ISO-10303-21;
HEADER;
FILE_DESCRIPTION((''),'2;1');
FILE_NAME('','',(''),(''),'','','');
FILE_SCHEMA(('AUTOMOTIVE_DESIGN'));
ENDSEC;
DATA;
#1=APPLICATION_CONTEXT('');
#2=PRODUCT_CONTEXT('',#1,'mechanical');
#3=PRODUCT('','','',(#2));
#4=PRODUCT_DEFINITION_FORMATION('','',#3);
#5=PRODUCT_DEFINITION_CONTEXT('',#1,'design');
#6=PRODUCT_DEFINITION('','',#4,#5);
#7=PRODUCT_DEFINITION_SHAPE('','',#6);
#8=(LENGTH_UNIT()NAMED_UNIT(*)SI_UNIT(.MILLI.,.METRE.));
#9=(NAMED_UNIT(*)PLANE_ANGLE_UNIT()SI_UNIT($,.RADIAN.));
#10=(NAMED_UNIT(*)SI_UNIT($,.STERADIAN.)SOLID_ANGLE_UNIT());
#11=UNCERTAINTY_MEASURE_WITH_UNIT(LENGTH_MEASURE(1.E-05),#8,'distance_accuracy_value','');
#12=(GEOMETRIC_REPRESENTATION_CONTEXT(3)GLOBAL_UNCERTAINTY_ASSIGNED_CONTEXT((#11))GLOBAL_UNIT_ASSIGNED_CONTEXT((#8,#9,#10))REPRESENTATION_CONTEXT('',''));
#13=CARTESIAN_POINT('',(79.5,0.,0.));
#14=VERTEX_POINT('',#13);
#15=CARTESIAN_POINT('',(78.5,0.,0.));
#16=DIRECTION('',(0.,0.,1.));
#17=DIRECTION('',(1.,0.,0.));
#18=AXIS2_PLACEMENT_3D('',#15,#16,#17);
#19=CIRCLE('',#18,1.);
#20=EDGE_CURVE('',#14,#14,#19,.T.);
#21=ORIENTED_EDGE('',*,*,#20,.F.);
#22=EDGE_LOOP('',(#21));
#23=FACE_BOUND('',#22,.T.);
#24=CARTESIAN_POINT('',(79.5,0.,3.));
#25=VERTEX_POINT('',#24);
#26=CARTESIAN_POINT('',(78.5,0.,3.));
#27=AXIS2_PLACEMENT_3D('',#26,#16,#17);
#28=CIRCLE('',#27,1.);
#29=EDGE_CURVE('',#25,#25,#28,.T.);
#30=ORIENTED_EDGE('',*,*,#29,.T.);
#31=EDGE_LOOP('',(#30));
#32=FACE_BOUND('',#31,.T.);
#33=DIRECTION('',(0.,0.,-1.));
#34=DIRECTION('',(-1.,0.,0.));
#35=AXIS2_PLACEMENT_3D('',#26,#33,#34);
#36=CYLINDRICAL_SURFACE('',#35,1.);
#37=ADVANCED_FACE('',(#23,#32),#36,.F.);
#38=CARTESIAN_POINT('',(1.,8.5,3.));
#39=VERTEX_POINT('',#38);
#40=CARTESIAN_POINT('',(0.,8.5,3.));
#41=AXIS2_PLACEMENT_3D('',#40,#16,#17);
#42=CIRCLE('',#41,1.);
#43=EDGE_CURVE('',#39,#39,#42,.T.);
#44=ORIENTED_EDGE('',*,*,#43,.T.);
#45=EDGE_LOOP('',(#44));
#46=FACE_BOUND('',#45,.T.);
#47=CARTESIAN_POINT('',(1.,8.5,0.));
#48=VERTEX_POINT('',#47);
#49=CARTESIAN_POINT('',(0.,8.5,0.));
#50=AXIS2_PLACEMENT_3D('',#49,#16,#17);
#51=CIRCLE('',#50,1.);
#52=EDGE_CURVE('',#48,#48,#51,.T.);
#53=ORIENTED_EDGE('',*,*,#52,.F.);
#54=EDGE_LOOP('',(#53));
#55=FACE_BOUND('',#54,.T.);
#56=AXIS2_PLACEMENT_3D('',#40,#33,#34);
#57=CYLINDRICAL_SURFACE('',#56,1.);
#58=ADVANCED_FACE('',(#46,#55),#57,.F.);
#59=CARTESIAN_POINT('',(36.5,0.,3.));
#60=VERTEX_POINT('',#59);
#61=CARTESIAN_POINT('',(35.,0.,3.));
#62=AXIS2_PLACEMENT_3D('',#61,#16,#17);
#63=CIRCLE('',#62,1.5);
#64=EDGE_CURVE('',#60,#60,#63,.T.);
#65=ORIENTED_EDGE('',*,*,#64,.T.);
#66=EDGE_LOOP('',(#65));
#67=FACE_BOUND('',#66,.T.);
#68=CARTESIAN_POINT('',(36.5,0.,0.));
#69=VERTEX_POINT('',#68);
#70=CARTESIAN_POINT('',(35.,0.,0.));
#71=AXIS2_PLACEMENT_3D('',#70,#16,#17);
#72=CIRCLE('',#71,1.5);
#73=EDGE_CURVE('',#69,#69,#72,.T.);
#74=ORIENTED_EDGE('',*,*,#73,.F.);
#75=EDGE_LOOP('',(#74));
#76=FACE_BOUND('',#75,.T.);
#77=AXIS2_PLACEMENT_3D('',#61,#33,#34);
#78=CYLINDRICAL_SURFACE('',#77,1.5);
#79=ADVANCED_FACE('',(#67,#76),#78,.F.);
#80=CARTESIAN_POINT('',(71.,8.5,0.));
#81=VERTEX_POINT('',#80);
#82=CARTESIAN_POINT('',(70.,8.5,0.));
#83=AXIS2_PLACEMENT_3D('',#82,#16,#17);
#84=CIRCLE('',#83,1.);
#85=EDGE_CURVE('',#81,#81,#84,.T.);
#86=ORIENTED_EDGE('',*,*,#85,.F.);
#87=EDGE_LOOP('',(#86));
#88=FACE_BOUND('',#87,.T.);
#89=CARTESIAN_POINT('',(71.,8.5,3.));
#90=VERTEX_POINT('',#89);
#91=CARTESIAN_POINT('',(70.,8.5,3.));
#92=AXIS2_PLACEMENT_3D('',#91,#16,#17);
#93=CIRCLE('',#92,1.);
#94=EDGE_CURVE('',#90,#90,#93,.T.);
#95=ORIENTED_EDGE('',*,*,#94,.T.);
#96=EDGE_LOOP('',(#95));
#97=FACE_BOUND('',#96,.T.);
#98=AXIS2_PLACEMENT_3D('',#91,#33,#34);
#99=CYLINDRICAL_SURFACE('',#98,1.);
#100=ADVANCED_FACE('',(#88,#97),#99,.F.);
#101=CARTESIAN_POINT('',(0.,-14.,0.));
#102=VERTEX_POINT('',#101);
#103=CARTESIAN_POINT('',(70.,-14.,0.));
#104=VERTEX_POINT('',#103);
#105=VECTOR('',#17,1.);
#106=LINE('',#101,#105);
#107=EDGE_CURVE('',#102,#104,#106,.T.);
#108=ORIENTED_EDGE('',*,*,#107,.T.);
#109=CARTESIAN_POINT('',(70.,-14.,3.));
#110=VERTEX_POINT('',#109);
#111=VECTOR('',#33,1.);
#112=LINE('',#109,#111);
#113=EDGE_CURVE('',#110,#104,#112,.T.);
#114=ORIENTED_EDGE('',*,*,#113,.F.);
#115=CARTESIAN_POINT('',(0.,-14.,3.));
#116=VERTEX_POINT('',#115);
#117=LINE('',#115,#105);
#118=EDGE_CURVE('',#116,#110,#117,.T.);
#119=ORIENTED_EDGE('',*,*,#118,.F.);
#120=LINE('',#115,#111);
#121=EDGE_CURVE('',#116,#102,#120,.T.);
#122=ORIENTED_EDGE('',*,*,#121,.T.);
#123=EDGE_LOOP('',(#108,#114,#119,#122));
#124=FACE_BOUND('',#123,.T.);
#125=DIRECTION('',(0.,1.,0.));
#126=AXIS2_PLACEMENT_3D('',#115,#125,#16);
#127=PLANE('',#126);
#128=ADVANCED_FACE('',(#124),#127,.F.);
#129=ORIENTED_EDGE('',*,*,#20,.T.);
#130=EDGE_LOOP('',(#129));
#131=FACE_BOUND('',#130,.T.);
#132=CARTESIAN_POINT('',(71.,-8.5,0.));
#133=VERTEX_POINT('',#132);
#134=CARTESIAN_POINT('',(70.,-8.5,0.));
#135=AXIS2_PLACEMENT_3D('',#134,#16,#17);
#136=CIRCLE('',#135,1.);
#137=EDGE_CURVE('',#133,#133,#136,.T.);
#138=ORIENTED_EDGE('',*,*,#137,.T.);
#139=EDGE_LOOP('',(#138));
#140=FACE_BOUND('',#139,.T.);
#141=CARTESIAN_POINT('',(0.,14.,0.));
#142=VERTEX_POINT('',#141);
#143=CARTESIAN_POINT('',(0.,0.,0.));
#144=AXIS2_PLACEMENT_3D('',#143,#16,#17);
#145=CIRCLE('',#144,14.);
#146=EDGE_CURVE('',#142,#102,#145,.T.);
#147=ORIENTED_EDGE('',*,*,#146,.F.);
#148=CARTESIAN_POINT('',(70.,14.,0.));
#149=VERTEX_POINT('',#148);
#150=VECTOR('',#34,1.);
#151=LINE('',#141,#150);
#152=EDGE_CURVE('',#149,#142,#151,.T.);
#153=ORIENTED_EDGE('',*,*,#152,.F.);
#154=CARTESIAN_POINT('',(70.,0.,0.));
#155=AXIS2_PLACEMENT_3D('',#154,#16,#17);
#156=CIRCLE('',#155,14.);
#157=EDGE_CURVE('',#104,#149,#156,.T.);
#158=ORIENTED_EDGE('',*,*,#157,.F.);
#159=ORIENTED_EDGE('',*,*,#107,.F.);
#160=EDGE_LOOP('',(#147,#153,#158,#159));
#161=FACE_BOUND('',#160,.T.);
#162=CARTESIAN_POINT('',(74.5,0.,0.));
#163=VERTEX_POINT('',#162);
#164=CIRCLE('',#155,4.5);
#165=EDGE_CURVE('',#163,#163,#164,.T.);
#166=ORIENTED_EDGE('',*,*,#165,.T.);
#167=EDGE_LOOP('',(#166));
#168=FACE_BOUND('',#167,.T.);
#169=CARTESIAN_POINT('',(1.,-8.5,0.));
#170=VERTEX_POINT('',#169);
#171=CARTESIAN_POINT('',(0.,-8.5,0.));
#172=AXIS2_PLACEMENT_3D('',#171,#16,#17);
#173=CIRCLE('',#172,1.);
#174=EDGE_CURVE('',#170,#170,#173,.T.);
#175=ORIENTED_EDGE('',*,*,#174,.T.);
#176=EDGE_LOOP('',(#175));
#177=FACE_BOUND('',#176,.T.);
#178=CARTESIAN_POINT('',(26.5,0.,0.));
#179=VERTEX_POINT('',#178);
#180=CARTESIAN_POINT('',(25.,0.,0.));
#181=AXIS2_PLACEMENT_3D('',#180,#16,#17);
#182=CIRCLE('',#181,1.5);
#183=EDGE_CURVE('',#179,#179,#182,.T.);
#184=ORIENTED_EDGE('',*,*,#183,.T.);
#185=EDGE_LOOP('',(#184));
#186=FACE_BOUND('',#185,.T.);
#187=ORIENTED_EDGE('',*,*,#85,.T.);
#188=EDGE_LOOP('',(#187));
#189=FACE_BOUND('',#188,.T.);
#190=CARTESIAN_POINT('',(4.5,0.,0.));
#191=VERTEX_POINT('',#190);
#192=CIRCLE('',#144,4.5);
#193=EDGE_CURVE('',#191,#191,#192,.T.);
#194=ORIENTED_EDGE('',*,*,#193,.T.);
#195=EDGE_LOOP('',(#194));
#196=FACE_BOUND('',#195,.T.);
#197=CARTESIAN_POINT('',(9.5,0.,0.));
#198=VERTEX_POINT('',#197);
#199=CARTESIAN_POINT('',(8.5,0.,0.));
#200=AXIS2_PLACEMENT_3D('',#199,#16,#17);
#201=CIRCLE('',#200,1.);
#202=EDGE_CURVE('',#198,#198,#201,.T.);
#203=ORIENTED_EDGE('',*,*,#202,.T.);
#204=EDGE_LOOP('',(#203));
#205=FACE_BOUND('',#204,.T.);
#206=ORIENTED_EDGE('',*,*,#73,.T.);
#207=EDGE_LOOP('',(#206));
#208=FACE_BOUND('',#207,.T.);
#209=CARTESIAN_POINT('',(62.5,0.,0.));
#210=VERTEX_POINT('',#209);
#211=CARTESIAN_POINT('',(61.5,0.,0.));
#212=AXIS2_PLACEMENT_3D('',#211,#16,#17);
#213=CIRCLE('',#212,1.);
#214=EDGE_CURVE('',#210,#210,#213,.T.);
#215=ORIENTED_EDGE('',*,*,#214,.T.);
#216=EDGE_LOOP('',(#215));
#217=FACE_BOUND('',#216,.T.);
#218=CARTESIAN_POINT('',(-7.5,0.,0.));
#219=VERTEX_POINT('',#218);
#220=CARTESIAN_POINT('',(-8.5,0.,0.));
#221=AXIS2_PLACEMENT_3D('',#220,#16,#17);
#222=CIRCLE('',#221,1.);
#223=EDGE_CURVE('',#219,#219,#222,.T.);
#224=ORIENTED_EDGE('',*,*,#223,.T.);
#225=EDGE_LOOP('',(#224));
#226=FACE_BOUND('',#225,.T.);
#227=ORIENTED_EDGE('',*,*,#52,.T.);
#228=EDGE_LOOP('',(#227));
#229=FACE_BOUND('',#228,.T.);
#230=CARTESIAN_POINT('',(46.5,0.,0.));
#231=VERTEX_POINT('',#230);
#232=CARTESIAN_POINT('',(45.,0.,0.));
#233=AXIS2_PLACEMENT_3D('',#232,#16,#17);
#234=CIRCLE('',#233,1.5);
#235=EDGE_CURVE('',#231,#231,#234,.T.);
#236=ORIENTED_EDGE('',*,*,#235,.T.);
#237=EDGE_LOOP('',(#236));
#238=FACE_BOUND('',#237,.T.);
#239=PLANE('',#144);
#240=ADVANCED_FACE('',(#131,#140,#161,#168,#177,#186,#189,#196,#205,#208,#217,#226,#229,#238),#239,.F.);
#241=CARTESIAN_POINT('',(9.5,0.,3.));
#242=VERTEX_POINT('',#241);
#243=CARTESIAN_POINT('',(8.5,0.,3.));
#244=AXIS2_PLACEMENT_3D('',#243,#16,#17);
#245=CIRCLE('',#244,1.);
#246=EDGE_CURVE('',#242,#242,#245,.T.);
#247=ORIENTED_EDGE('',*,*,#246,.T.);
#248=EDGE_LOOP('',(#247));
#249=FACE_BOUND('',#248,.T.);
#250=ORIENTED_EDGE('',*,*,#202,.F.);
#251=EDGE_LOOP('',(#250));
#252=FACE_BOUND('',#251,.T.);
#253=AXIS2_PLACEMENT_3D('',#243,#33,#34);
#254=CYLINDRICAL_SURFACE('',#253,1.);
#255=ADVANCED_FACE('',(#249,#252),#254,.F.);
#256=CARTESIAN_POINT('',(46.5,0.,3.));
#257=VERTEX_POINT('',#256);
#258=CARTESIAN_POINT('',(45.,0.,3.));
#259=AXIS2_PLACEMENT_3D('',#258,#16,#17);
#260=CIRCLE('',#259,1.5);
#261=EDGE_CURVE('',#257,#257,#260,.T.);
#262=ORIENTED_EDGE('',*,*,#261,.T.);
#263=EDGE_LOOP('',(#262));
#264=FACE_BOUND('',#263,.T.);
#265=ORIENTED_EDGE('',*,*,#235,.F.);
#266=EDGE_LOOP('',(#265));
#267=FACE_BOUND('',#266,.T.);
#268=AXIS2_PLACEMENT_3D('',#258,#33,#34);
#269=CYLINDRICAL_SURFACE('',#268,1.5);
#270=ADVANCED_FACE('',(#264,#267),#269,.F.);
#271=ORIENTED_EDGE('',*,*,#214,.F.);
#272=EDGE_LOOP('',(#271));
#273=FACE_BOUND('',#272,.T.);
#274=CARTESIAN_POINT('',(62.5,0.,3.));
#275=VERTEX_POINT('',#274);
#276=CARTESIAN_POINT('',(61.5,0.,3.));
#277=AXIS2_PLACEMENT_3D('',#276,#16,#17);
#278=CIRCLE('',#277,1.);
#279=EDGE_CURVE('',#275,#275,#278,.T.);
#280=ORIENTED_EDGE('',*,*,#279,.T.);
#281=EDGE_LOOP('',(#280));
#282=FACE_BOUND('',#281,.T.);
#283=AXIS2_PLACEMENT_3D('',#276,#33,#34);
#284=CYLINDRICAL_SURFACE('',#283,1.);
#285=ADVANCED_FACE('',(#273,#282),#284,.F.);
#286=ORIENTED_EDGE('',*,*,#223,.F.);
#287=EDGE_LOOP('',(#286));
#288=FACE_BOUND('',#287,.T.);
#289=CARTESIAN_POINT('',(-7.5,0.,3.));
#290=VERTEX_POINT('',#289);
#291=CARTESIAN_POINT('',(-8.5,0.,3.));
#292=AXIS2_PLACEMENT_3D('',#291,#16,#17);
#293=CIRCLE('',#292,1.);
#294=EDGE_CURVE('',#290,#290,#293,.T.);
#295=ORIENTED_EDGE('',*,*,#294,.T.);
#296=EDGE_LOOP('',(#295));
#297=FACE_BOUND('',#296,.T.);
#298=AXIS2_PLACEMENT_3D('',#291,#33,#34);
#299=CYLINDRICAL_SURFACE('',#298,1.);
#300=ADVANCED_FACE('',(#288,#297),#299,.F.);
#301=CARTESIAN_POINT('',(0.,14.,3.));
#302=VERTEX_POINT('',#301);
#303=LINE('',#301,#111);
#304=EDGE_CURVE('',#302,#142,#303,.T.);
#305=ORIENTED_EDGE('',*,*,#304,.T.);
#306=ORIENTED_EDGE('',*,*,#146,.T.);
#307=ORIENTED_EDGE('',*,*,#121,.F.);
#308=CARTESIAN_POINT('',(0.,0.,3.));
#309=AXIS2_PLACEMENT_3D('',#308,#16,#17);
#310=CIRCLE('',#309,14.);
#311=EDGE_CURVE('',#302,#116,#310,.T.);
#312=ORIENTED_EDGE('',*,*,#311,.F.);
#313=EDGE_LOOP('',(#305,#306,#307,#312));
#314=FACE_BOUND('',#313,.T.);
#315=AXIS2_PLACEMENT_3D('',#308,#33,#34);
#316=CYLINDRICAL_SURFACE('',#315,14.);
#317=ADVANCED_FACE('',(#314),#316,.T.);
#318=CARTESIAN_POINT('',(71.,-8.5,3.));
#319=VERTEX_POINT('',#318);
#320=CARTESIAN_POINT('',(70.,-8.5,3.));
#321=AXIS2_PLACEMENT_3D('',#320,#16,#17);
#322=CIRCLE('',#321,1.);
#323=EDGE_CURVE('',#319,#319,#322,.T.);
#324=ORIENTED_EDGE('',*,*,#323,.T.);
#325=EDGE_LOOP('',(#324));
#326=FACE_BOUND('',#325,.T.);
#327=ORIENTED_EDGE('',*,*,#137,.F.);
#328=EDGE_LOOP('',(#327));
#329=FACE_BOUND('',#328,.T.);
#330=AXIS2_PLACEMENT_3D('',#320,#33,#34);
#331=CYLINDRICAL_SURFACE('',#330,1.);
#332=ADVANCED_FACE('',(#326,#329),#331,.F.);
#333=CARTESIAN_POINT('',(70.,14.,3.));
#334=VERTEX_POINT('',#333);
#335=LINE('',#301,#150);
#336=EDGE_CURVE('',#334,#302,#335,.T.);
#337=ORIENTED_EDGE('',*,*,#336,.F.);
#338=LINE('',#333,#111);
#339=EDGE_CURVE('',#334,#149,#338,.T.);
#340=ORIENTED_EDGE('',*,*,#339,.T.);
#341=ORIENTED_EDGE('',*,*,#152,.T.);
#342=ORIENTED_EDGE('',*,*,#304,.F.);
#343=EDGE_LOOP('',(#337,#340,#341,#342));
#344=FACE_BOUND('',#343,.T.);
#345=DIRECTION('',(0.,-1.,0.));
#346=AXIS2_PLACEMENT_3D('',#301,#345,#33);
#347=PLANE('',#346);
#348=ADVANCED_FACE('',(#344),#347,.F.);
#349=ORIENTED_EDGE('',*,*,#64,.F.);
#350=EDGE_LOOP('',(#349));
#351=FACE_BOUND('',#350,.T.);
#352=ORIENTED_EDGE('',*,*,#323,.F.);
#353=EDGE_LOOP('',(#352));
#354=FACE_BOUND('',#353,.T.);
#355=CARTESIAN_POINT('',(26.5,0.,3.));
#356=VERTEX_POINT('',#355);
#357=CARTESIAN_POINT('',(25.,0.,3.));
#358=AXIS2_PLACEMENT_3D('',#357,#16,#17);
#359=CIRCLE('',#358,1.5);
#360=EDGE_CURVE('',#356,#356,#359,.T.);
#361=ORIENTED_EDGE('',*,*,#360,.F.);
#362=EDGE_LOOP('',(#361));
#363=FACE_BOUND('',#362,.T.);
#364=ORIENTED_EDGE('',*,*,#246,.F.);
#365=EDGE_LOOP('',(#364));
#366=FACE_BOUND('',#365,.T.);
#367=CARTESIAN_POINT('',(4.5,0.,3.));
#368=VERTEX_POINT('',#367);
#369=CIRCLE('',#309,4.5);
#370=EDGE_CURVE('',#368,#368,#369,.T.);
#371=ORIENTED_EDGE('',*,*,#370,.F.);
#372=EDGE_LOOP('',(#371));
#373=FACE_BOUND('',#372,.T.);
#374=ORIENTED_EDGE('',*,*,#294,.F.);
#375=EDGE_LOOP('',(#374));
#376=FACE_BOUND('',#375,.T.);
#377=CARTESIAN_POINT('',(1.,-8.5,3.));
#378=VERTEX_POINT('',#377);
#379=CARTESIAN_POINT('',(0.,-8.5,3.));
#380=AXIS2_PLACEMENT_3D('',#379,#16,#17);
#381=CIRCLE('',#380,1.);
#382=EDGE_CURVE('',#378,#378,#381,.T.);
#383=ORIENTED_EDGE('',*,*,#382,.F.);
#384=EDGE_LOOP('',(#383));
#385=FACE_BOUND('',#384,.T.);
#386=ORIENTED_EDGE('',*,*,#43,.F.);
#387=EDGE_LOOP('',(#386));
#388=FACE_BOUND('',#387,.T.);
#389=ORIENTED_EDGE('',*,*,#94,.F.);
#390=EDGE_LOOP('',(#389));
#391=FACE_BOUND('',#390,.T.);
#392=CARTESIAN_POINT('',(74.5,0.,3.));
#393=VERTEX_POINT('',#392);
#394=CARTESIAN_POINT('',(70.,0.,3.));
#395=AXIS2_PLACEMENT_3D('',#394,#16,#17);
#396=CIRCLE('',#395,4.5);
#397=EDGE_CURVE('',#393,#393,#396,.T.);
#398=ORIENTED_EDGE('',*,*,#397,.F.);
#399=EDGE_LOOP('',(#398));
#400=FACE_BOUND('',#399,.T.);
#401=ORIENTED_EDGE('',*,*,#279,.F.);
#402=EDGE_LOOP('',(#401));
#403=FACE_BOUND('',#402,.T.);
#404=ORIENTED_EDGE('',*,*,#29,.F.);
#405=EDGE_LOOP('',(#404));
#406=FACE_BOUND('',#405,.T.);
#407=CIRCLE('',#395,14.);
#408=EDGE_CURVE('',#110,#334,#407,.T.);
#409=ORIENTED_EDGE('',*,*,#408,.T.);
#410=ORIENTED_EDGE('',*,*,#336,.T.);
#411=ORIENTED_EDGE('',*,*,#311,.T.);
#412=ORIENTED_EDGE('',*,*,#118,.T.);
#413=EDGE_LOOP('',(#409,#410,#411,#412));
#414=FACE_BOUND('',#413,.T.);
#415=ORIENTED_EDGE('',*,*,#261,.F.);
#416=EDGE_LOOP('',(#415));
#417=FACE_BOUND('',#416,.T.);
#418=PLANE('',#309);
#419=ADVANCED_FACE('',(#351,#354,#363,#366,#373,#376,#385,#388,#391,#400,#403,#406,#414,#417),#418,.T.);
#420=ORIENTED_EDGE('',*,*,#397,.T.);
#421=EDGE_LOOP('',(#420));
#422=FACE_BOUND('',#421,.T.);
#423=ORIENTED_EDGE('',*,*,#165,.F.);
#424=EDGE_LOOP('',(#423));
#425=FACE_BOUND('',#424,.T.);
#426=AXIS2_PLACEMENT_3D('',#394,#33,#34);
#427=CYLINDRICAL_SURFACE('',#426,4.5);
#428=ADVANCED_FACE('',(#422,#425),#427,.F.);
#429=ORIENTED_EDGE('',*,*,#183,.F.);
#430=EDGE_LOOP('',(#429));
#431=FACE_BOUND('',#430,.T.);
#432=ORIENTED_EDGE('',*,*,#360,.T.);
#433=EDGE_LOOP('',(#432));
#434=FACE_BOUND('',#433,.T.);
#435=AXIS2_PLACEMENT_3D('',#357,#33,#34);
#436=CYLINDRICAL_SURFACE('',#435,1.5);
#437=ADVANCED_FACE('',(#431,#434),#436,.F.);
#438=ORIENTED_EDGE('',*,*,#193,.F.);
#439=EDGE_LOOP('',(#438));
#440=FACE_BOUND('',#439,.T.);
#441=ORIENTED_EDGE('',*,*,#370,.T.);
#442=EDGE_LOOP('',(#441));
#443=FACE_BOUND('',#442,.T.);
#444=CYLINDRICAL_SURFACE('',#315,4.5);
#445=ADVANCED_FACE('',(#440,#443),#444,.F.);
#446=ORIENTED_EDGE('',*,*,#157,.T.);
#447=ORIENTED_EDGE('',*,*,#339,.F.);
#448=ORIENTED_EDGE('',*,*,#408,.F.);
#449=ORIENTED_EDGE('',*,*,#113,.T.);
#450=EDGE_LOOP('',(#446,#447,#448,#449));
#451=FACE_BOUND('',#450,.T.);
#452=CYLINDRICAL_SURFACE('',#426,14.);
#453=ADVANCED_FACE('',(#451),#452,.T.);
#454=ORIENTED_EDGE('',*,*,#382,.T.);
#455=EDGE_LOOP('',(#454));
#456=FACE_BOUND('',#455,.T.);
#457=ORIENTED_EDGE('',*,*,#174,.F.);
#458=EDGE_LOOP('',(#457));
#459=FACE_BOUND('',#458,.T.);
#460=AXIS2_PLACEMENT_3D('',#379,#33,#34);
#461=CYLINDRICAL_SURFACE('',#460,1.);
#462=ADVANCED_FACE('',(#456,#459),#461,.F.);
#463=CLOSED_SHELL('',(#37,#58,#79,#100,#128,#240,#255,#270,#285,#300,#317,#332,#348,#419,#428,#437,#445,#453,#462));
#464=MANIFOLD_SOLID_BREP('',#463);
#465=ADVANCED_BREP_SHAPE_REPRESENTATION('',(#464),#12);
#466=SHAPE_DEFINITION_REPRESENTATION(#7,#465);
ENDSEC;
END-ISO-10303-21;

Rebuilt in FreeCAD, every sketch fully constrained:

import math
import FreeCAD as App
import Part
import Sketcher
from FreeCAD import Vector
Q = App.Units.Quantity

doc = App.newDocument("Part")
body = doc.addObject("PartDesign::Body", "Body")

sketch1 = body.newObject("Sketcher::SketchObject", "Sketch")
sketch1.AttachmentSupport = (doc.getObject("XY_Plane"), [""])
sketch1.MapMode = "FlatFace"
sketch1.addGeometry(Part.LineSegment(Vector(70, 14, 0), Vector(0, 14, 0)), False)
sketch1.addGeometry(Part.ArcOfCircle(Part.Circle(Vector(0, 0, 0), Vector(0, 0, 1), 14), math.radians(90), math.radians(270)), False)
sketch1.addGeometry(Part.LineSegment(Vector(0, -14, 0), Vector(70, -14, 0)), False)
sketch1.addGeometry(Part.ArcOfCircle(Part.Circle(Vector(70, 0, 0), Vector(0, 0, 1), 14), math.radians(-90), math.radians(90)), False)
sketch1.addGeometry(Part.Circle(Vector(70, -8.5, 0), Vector(0, 0, 1), 1), False)
sketch1.addGeometry(Part.Circle(Vector(0, -8.5, 0), Vector(0, 0, 1), 1), False)
sketch1.addGeometry(Part.Circle(Vector(78.5, 0, 0), Vector(0, 0, 1), 1), False)
sketch1.addGeometry(Part.Circle(Vector(70, 0, 0), Vector(0, 0, 1), 4.5), False)
sketch1.addGeometry(Part.Circle(Vector(61.5, 0, 0), Vector(0, 0, 1), 1), False)
sketch1.addGeometry(Part.Circle(Vector(45, 0, 0), Vector(0, 0, 1), 1.5), False)
sketch1.addGeometry(Part.Circle(Vector(70, 8.5, 0), Vector(0, 0, 1), 1), False)
sketch1.addGeometry(Part.Circle(Vector(35, 0, 0), Vector(0, 0, 1), 1.5), False)
sketch1.addGeometry(Part.Circle(Vector(25, 0, 0), Vector(0, 0, 1), 1.5), False)
sketch1.addGeometry(Part.Circle(Vector(8.5, 0, 0), Vector(0, 0, 1), 1), False)
sketch1.addGeometry(Part.Circle(Vector(0, 0, 0), Vector(0, 0, 1), 4.5), False)
sketch1.addGeometry(Part.Circle(Vector(-8.5, 0, 0), Vector(0, 0, 1), 1), False)
sketch1.addGeometry(Part.Circle(Vector(0, 8.5, 0), Vector(0, 0, 1), 1), False)
sketch1.addConstraint(Sketcher.Constraint("Tangent", 0, 2, 1, 1))
sketch1.addConstraint(Sketcher.Constraint("Tangent", 1, 2, 2, 1))
sketch1.addConstraint(Sketcher.Constraint("Tangent", 2, 2, 3, 1))
sketch1.addConstraint(Sketcher.Constraint("Tangent", 3, 2, 0, 1))
sketch1.addConstraint(Sketcher.Constraint("Horizontal", 0))
sketch1.addConstraint(Sketcher.Constraint("Horizontal", 2))
sketch1.addConstraint(Sketcher.Constraint("Coincident", 1, 3, -1, 1))
sketch1.addConstraint(Sketcher.Constraint("Coincident", 14, 3, -1, 1))
sketch1.addConstraint(Sketcher.Constraint("Coincident", 7, 3, 3, 3))
sketch1.addConstraint(Sketcher.Constraint("Equal", 4, 5))
sketch1.addConstraint(Sketcher.Constraint("Equal", 5, 6))
sketch1.addConstraint(Sketcher.Constraint("Equal", 6, 8))
sketch1.addConstraint(Sketcher.Constraint("Equal", 8, 10))
sketch1.addConstraint(Sketcher.Constraint("Equal", 9, 11))
sketch1.addConstraint(Sketcher.Constraint("Equal", 11, 12))
sketch1.addConstraint(Sketcher.Constraint("Equal", 10, 13))
sketch1.addConstraint(Sketcher.Constraint("Equal", 7, 14))
sketch1.addConstraint(Sketcher.Constraint("Equal", 13, 15))
sketch1.addConstraint(Sketcher.Constraint("Equal", 15, 16))
sketch1.addConstraint(Sketcher.Constraint("Symmetric", 13, 3, 15, 3, -1, 1))
sketch1.addConstraint(Sketcher.Constraint("Symmetric", 5, 3, 16, 3, -1, 1))
sketch1.addConstraint(Sketcher.Constraint("Symmetric", 4, 3, 10, 3, -1))
sketch1.addConstraint(Sketcher.Constraint("PointOnObject", 5, 3, -2))
sketch1.addConstraint(Sketcher.Constraint("PointOnObject", 6, 3, -1))
sketch1.addConstraint(Sketcher.Constraint("PointOnObject", 8, 3, -1))
sketch1.addConstraint(Sketcher.Constraint("PointOnObject", 9, 3, -1))
sketch1.addConstraint(Sketcher.Constraint("PointOnObject", 11, 3, -1))
sketch1.addConstraint(Sketcher.Constraint("PointOnObject", 12, 3, -1))
sketch1.addConstraint(Sketcher.Constraint("PointOnObject", 13, 3, -1))
sketch1.addConstraint(Sketcher.Constraint("Horizontal", 4, 3, 5, 3))
sketch1.addConstraint(Sketcher.Constraint("Vertical", 3, 3, 4, 3))
sketch1.addConstraint(Sketcher.Constraint("Diameter", 4, Q("2 mm")))
sketch1.addConstraint(Sketcher.Constraint("Diameter", 7, Q("9 mm")))
sketch1.addConstraint(Sketcher.Constraint("Diameter", 9, Q("3 mm")))
sketch1.addConstraint(Sketcher.Constraint("Radius", 1, Q("14 mm")))
sketch1.addConstraint(Sketcher.Constraint("DistanceX", 0, 2, 0, 1, Q("70 mm")))
sketch1.addConstraint(Sketcher.Constraint("DistanceX", -1, 1, 9, 3, Q("45 mm")))
sketch1.addConstraint(Sketcher.Constraint("DistanceX", -1, 1, 11, 3, Q("35 mm")))
sketch1.addConstraint(Sketcher.Constraint("DistanceX", -1, 1, 12, 3, Q("25 mm")))
sketch1.addConstraint(Sketcher.Constraint("DistanceX", 8, 3, 6, 3, Q("17 mm")))
sketch1.addConstraint(Sketcher.Constraint("DistanceY", 4, 3, 10, 3, Q("17 mm")))
sketch1.addConstraint(Sketcher.Constraint("DistanceX", 15, 3, 13, 3, Q("17 mm")))
sketch1.addConstraint(Sketcher.Constraint("DistanceX", -1, 1, 6, 3, Q("78.5 mm")))
pad1 = body.newObject("PartDesign::Pad", "Pad")
pad1.Profile = sketch1
pad1.Length = 3

doc.recompute()
